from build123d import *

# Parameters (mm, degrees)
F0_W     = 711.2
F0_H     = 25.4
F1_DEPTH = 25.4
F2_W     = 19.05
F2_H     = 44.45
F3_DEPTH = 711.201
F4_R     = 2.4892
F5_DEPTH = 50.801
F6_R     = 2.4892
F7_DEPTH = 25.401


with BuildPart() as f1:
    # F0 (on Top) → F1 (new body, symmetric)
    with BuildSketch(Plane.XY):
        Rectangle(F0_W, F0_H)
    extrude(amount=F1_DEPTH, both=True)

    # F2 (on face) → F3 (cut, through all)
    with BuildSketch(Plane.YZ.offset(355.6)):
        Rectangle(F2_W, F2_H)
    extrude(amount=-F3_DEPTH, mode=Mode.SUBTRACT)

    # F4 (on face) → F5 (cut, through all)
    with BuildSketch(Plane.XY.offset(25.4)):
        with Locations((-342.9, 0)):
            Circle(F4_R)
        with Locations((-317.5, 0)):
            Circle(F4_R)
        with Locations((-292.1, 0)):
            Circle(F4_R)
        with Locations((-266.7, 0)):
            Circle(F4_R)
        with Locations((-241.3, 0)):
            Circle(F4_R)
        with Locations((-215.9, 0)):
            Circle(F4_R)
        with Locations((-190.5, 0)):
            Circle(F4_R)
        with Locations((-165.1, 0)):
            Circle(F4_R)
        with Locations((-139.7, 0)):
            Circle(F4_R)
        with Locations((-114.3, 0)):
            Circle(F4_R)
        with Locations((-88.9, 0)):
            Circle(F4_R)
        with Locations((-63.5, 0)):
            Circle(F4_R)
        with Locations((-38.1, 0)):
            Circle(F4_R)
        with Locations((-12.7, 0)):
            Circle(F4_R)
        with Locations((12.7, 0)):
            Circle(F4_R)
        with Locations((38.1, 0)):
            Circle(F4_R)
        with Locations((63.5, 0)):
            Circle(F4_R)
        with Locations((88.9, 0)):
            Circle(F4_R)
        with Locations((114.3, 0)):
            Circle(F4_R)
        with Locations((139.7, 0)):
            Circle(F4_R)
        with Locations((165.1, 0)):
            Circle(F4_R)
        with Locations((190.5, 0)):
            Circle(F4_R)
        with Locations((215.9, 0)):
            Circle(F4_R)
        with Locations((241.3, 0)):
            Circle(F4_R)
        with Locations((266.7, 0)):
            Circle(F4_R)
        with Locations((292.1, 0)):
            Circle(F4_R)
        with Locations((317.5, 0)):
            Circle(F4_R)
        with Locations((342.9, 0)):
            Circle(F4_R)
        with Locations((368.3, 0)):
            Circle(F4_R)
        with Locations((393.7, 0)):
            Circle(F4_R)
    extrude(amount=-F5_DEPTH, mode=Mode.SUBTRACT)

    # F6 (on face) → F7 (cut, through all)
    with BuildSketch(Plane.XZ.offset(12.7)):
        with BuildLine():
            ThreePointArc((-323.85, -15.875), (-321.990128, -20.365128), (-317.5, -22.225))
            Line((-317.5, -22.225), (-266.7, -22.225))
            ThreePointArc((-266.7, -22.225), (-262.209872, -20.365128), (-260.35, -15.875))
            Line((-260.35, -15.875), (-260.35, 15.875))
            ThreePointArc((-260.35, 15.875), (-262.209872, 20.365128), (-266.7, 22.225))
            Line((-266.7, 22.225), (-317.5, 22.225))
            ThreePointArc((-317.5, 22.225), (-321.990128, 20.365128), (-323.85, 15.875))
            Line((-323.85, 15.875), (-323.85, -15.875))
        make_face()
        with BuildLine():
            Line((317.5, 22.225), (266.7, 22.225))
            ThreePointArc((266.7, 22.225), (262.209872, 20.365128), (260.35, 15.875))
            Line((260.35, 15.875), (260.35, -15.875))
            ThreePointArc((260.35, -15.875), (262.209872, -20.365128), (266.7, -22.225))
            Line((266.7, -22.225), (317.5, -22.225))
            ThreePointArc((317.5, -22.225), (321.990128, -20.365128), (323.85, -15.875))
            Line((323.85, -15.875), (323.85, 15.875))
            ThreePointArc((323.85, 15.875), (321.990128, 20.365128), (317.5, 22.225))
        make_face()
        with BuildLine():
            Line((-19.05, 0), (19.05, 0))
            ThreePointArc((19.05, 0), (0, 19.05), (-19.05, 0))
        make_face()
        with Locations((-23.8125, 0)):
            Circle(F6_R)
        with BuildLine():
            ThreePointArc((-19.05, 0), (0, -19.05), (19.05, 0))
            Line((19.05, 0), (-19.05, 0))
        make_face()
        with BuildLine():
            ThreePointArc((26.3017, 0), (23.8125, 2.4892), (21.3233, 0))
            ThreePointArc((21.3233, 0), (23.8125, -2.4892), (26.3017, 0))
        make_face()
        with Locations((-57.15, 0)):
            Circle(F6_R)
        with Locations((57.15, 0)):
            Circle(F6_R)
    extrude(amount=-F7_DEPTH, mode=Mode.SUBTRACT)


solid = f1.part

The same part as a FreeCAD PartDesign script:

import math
import FreeCAD as App
import Part
import Sketcher

V = App.Vector
Q = App.Units.Quantity

doc = App.newDocument("Part")
body = doc.addObject("PartDesign::Body", "Body")

sketch1 = body.newObject("Sketcher::SketchObject", "Sketch")
sketch1.AttachmentSupport = (doc.getObject("XY_Plane"), [""])
sketch1.MapMode = "FlatFace"
sketch1.addGeometry([
    Part.LineSegment(V(-356, 13, 0), V(-356, -13, 0)),
    Part.LineSegment(V(-356, -13, 0), V(356, -13, 0)),
    Part.LineSegment(V(356, -13, 0), V(356, 13, 0)),
    Part.LineSegment(V(356, 13, 0), V(-356, 13, 0)),
], False)
sketch1.addConstraint([
    Sketcher.Constraint("Coincident", 0, 2, 1, 1),
    Sketcher.Constraint("Coincident", 1, 2, 2, 1),
    Sketcher.Constraint("Coincident", 2, 2, 3, 1),
    Sketcher.Constraint("Coincident", 3, 2, 0, 1),
    Sketcher.Constraint("Vertical", 0),
    Sketcher.Constraint("Horizontal", 1),
    Sketcher.Constraint("Vertical", 2),
    Sketcher.Constraint("Horizontal", 3),
    Sketcher.Constraint("Symmetric", 0, 2, 2, 2, -1, 1),
    Sketcher.Constraint("DistanceX", 1, 1, 1, 2, Q("28 in")),
    Sketcher.Constraint("DistanceY", 0, 2, 0, 1, Q("1 in")),
])
pad1 = body.newObject("PartDesign::Pad", "Pad")
pad1.Profile = sketch1
pad1.Length = Q("2 in")
pad1.Midplane = True

sketch2 = body.newObject("Sketcher::SketchObject", "Sketch001")
sketch2.AttachmentSupport = (doc.getObject("YZ_Plane"), [""])
sketch2.MapMode = "FlatFace"
sketch2.AttachmentOffset = App.Placement(V(0, 0, 14 * 25.4), App.Rotation())
sketch2.addGeometry([
    Part.LineSegment(V(-10, 22, 0), V(-10, -22, 0)),
    Part.LineSegment(V(-10, -22, 0), V(10, -22, 0)),
    Part.LineSegment(V(10, -22, 0), V(10, 22, 0)),
    Part.LineSegment(V(10, 22, 0), V(-10, 22, 0)),
], False)
sketch2.addConstraint([
    Sketcher.Constraint("Coincident", 0, 2, 1, 1),
    Sketcher.Constraint("Coincident", 1, 2, 2, 1),
    Sketcher.Constraint("Coincident", 2, 2, 3, 1),
    Sketcher.Constraint("Coincident", 3, 2, 0, 1),
    Sketcher.Constraint("Vertical", 0),
    Sketcher.Constraint("Horizontal", 1),
    Sketcher.Constraint("Vertical", 2),
    Sketcher.Constraint("Horizontal", 3),
    Sketcher.Constraint("Symmetric", 0, 2, 2, 2, -1, 1),
    Sketcher.Constraint("DistanceX", 1, 1, 1, 2, Q("0.75 in")),
    Sketcher.Constraint("DistanceY", 0, 2, 0, 1, Q("1.75 in")),
])
pocket1 = body.newObject("PartDesign::Pocket", "Pocket")
pocket1.Profile = sketch2
pocket1.Type = "ThroughAll"

sketch3 = body.newObject("Sketcher::SketchObject", "Sketch002")
sketch3.AttachmentSupport = (doc.getObject("XY_Plane"), [""])
sketch3.MapMode = "FlatFace"
sketch3.AttachmentOffset = App.Placement(V(0, 0, 1 * 25.4), App.Rotation())
sketch3.addGeometry([
    Part.Circle(V(-342.9, 0, 0), V(0, 0, 1), 2.5),
    Part.Circle(V(-317.5, 0, 0), V(0, 0, 1), 2.5),
    Part.Circle(V(-292.1, 0, 0), V(0, 0, 1), 2.5),
    Part.Circle(V(-266.7, 0, 0), V(0, 0, 1), 2.5),
    Part.Circle(V(-241.3, 0, 0), V(0, 0, 1), 2.5),
    Part.Circle(V(-215.9, 0, 0), V(0, 0, 1), 2.5),
    Part.Circle(V(-190.5, 0, 0), V(0, 0, 1), 2.5),
    Part.Circle(V(-165.1, 0, 0), V(0, 0, 1), 2.5),
    Part.Circle(V(-139.7, 0, 0), V(0, 0, 1), 2.5),
    Part.Circle(V(-114.3, 0, 0), V(0, 0, 1), 2.5),
    Part.Circle(V(-88.9, 0, 0), V(0, 0, 1), 2.5),
    Part.Circle(V(-63.5, 0, 0), V(0, 0, 1), 2.5),
    Part.Circle(V(-38.1, 0, 0), V(0, 0, 1), 2.5),
    Part.Circle(V(-12.7, 0, 0), V(0, 0, 1), 2.5),
    Part.Circle(V(12.7, 0, 0), V(0, 0, 1), 2.5),
    Part.Circle(V(38.1, 0, 0), V(0, 0, 1), 2.5),
    Part.Circle(V(63.5, 0, 0), V(0, 0, 1), 2.5),
    Part.Circle(V(88.9, 0, 0), V(0, 0, 1), 2.5),
    Part.Circle(V(114.3, 0, 0), V(0, 0, 1), 2.5),
    Part.Circle(V(139.7, 0, 0), V(0, 0, 1), 2.5),
    Part.Circle(V(165.1, 0, 0), V(0, 0, 1), 2.5),
    Part.Circle(V(190.5, 0, 0), V(0, 0, 1), 2.5),
    Part.Circle(V(215.9, 0, 0), V(0, 0, 1), 2.5),
    Part.Circle(V(241.3, 0, 0), V(0, 0, 1), 2.5),
    Part.Circle(V(266.7, 0, 0), V(0, 0, 1), 2.5),
    Part.Circle(V(292.1, 0, 0), V(0, 0, 1), 2.5),
    Part.Circle(V(317.5, 0, 0), V(0, 0, 1), 2.5),
    Part.Circle(V(342.9, 0, 0), V(0, 0, 1), 2.5),
    Part.Circle(V(368.3, 0, 0), V(0, 0, 1), 2.5),
    Part.Circle(V(393.7, 0, 0), V(0, 0, 1), 2.5),
], False)
sketch3.addConstraint([
    Sketcher.Constraint("Equal", 0, 1),
    Sketcher.Constraint("Equal", 1, 2),
    Sketcher.Constraint("Equal", 2, 3),
    Sketcher.Constraint("Equal", 3, 4),
    Sketcher.Constraint("Equal", 4, 5),
    Sketcher.Constraint("Equal", 5, 6),
    Sketcher.Constraint("Equal", 6, 7),
    Sketcher.Constraint("Equal", 7, 8),
    Sketcher.Constraint("Equal", 8, 9),
    Sketcher.Constraint("Equal", 9, 10),
    Sketcher.Constraint("Equal", 10, 11),
    Sketcher.Constraint("Equal", 11, 12),
    Sketcher.Constraint("Equal", 12, 13),
    Sketcher.Constraint("Equal", 13, 14),
    Sketcher.Constraint("Equal", 14, 15),
    Sketcher.Constraint("Equal", 15, 16),
    Sketcher.Constraint("Equal", 16, 17),
    Sketcher.Constraint("Equal", 17, 18),
    Sketcher.Constraint("Equal", 18, 19),
    Sketcher.Constraint("Equal", 19, 20),
    Sketcher.Constraint("Equal", 20, 21),
    Sketcher.Constraint("Equal", 21, 22),
    Sketcher.Constraint("Equal", 22, 23),
    Sketcher.Constraint("Equal", 23, 24),
    Sketcher.Constraint("Equal", 24, 25),
    Sketcher.Constraint("Equal", 25, 26),
    Sketcher.Constraint("Equal", 26, 27),
    Sketcher.Constraint("Equal", 27, 28),
    Sketcher.Constraint("Equal", 28, 29),
    Sketcher.Constraint("Symmetric", 13, 3, 14, 3, -1, 1),
    Sketcher.Constraint("Symmetric", 12, 3, 15, 3, -1, 1),
    Sketcher.Constraint("Symmetric", 11, 3, 16, 3, -1, 1),
    Sketcher.Constraint("Symmetric", 10, 3, 17, 3, -1, 1),
    Sketcher.Constraint("Symmetric", 9, 3, 18, 3, -1, 1),
    Sketcher.Constraint("Symmetric", 8, 3, 19, 3, -1, 1),
    Sketcher.Constraint("Symmetric", 7, 3, 20, 3, -1, 1),
    Sketcher.Constraint("Symmetric", 6, 3, 21, 3, -1, 1),
    Sketcher.Constraint("Symmetric", 5, 3, 22, 3, -1, 1),
    Sketcher.Constraint("Symmetric", 4, 3, 23, 3, -1, 1),
    Sketcher.Constraint("Symmetric", 3, 3, 24, 3, -1, 1),
    Sketcher.Constraint("Symmetric", 2, 3, 25, 3, -1, 1),
    Sketcher.Constraint("Symmetric", 1, 3, 26, 3, -1, 1),
    Sketcher.Constraint("Symmetric", 0, 3, 27, 3, -1, 1),
    Sketcher.Constraint("PointOnObject", 0, 3, -1),
    Sketcher.Constraint("PointOnObject", 1, 3, -1),
    Sketcher.Constraint("PointOnObject", 2, 3, -1),
    Sketcher.Constraint("PointOnObject", 3, 3, -1),
    Sketcher.Constraint("PointOnObject", 4, 3, -1),
    Sketcher.Constraint("PointOnObject", 5, 3, -1),
    Sketcher.Constraint("PointOnObject", 6, 3, -1),
    Sketcher.Constraint("PointOnObject", 7, 3, -1),
    Sketcher.Constraint("PointOnObject", 8, 3, -1),
    Sketcher.Constraint("PointOnObject", 9, 3, -1),
    Sketcher.Constraint("PointOnObject", 10, 3, -1),
    Sketcher.Constraint("PointOnObject", 11, 3, -1),
    Sketcher.Constraint("PointOnObject", 12, 3, -1),
    Sketcher.Constraint("PointOnObject", 13, 3, -1),
    Sketcher.Constraint("PointOnObject", 28, 3, -1),
    Sketcher.Constraint("PointOnObject", 29, 3, -1),
    Sketcher.Constraint("Diameter", 0, Q("0.196 in")),
    Sketcher.Constraint("DistanceX", 0, 3, 1, 3, Q("1 in")),
    Sketcher.Constraint("DistanceX", 1, 3, 2, 3, Q("1 in")),
    Sketcher.Constraint("DistanceX", 2, 3, 3, 3, Q("1 in")),
    Sketcher.Constraint("DistanceX", 3, 3, 4, 3, Q("1 in")),
    Sketcher.Constraint("DistanceX", 4, 3, 5, 3, Q("1 in")),
    Sketcher.Constraint("DistanceX", 5, 3, 6, 3, Q("1 in")),
    Sketcher.Constraint("DistanceX", 6, 3, 7, 3, Q("1 in")),
    Sketcher.Constraint("DistanceX", 7, 3, 8, 3, Q("1 in")),
    Sketcher.Constraint("DistanceX", 8, 3, 9, 3, Q("1 in")),
    Sketcher.Constraint("DistanceX", 9, 3, 10, 3, Q("1 in")),
    Sketcher.Constraint("DistanceX", 10, 3, 11, 3, Q("1 in")),
    Sketcher.Constraint("DistanceX", 11, 3, 12, 3, Q("1 in")),
    Sketcher.Constraint("DistanceX", 12, 3, 13, 3, Q("1 in")),
    Sketcher.Constraint("DistanceX", 13, 3, 14, 3, Q("1 in")),
    Sketcher.Constraint("DistanceX", 27, 3, 28, 3, Q("1 in")),
    Sketcher.Constraint("DistanceX", 28, 3, 29, 3, Q("1 in")),
])
pocket2 = body.newObject("PartDesign::Pocket", "Pocket001")
pocket2.Profile = sketch3
pocket2.Type = "ThroughAll"

sketch4 = body.newObject("Sketcher::SketchObject", "Sketch003")
sketch4.AttachmentSupport = (doc.getObject("XZ_Plane"), [""])
sketch4.MapMode = "FlatFace"
sketch4.AttachmentOffset = App.Placement(V(0, 0, 0.5 * 25.4), App.Rotation())
sketch4.addGeometry([
    Part.ArcOfCircle(Part.Circle(V(-317.5, -15.9, 0), V(0, 0, 1), 6.4), math.radians(-180), math.radians(-90)),
    Part.LineSegment(V(-317.5, -22.2, 0), V(-266.7, -22.2, 0)),
    Part.ArcOfCircle(Part.Circle(V(-266.7, -15.9, 0), V(0, 0, 1), 6.4), math.radians(-90), math.radians(0)),
    Part.LineSegment(V(-260.4, -15.9, 0), V(-260.4, 15.9, 0)),
    Part.ArcOfCircle(Part.Circle(V(-266.7, 15.9, 0), V(0, 0, 1), 6.4), math.radians(0), math.radians(90)),
    Part.LineSegment(V(-266.7, 22.2, 0), V(-317.5, 22.2, 0)),
    Part.ArcOfCircle(Part.Circle(V(-317.5, 15.9, 0), V(0, 0, 1), 6.4), math.radians(90), math.radians(180)),
    Part.LineSegment(V(-323.9, 15.9, 0), V(-323.9, -15.9, 0)),
    Part.LineSegment(V(317.5, 22.2, 0), V(266.7, 22.2, 0)),
    Part.ArcOfCircle(Part.Circle(V(266.7, 15.9, 0), V(0, 0, 1), 6.4), math.radians(90), math.radians(180)),
    Part.LineSegment(V(260.4, 15.9, 0), V(260.4, -15.9, 0)),
    Part.ArcOfCircle(Part.Circle(V(266.7, -15.9, 0), V(0, 0, 1), 6.4), math.radians(-180), math.radians(-90)),
    Part.LineSegment(V(266.7, -22.2, 0), V(317.5, -22.2, 0)),
    Part.ArcOfCircle(Part.Circle(V(317.5, -15.9, 0), V(0, 0, 1), 6.4), math.radians(-90), math.radians(0)),
    Part.LineSegment(V(323.9, -15.9, 0), V(323.9, 15.9, 0)),
    Part.ArcOfCircle(Part.Circle(V(317.5, 15.9, 0), V(0, 0, 1), 6.4), math.radians(0), math.radians(90)),
    Part.Circle(V(0, 0, 0), V(0, 0, 1), 19.1),
    Part.Circle(V(-23.8, 0, 0), V(0, 0, 1), 2.5),
    Part.Circle(V(23.8, 0, 0), V(0, 0, 1), 2.5),
    Part.Circle(V(-57.1, 0, 0), V(0, 0, 1), 2.5),
    Part.Circle(V(57.1, 0, 0), V(0, 0, 1), 2.5),
], False)
sketch4.addConstraint([
    Sketcher.Constraint("Tangent", 0, 2, 1, 1),
    Sketcher.Constraint("Tangent", 1, 2, 2, 1),
    Sketcher.Constraint("Tangent", 2, 2, 3, 1),
    Sketcher.Constraint("Tangent", 3, 2, 4, 1),
    Sketcher.Constraint("Tangent", 4, 2, 5, 1),
    Sketcher.Constraint("Tangent", 5, 2, 6, 1),
    Sketcher.Constraint("Tangent", 6, 2, 7, 1),
    Sketcher.Constraint("Tangent", 7, 2, 0, 1),
    Sketcher.Constraint("Tangent", 8, 2, 9, 1),
    Sketcher.Constraint("Tangent", 9, 2, 10, 1),
    Sketcher.Constraint("Tangent", 10, 2, 11, 1),
    Sketcher.Constraint("Tangent", 11, 2, 12, 1),
    Sketcher.Constraint("Tangent", 12, 2, 13, 1),
    Sketcher.Constraint("Tangent", 13, 2, 14, 1),
    Sketcher.Constraint("Tangent", 14, 2, 15, 1),
    Sketcher.Constraint("Tangent", 15, 2, 8, 1),
    Sketcher.Constraint("Horizontal", 1),
    Sketcher.Constraint("Vertical", 3),
    Sketcher.Constraint("Horizontal", 5),
    Sketcher.Constraint("Vertical", 7),
    Sketcher.Constraint("Horizontal", 8),
    Sketcher.Constraint("Vertical", 10),
    Sketcher.Constraint("Horizontal", 12),
    Sketcher.Constraint("Vertical", 14),
    Sketcher.Constraint("Coincident", 16, 3, -1, 1),
    Sketcher.Constraint("Equal", 0, 2),
    Sketcher.Constraint("Equal", 2, 4),
    Sketcher.Constraint("Equal", 4, 6),
    Sketcher.Constraint("Equal", 6, 9),
    Sketcher.Constraint("Equal", 9, 11),
    Sketcher.Constraint("Equal", 11, 13),
    Sketcher.Constraint("Equal", 13, 15),
    Sketcher.Constraint("Equal", 17, 18),
    Sketcher.Constraint("Equal", 18, 19),
    Sketcher.Constraint("Equal", 19, 20),
    Sketcher.Constraint("Symmetric", 2, 3, 9, 3, -1, 1),
    Sketcher.Constraint("Symmetric", 6, 3, 13, 3, -1, 1),
    Sketcher.Constraint("Symmetric", 17, 3, 18, 3, -1, 1),
    Sketcher.Constraint("Symmetric", 19, 3, 20, 3, -1, 1),
    Sketcher.Constraint("PointOnObject", 17, 3, -1),
    Sketcher.Constraint("PointOnObject", 19, 3, -1),
    Sketcher.Constraint("Horizontal", 6, 3, 9, 3),
    Sketcher.Constraint("Diameter", 16, Q("1.5 in")),
    Sketcher.Constraint("DistanceX", 1, 1, 1, 2, Q("2 in")),
    Sketcher.Constraint("Radius", 0, Q("0.25 in")),
    Sketcher.Constraint("Diameter", 17, Q("0.196 in")),
    Sketcher.Constraint("DistanceX", 4, 3, 9, 3, Q("21 in")),
    Sketcher.Constraint("DistanceY", 3, 1, 3, 2, Q("1.25 in")),
    Sketcher.Constraint("DistanceX", 19, 3, 20, 3, Q("4.5 in")),
    Sketcher.Constraint("DistanceX", 17, 3, -1, 1, Q("0.9375 in")),
])
pocket3 = body.newObject("PartDesign::Pocket", "Pocket002")
pocket3.Profile = sketch4
pocket3.Type = "ThroughAll"

doc.recompute()
